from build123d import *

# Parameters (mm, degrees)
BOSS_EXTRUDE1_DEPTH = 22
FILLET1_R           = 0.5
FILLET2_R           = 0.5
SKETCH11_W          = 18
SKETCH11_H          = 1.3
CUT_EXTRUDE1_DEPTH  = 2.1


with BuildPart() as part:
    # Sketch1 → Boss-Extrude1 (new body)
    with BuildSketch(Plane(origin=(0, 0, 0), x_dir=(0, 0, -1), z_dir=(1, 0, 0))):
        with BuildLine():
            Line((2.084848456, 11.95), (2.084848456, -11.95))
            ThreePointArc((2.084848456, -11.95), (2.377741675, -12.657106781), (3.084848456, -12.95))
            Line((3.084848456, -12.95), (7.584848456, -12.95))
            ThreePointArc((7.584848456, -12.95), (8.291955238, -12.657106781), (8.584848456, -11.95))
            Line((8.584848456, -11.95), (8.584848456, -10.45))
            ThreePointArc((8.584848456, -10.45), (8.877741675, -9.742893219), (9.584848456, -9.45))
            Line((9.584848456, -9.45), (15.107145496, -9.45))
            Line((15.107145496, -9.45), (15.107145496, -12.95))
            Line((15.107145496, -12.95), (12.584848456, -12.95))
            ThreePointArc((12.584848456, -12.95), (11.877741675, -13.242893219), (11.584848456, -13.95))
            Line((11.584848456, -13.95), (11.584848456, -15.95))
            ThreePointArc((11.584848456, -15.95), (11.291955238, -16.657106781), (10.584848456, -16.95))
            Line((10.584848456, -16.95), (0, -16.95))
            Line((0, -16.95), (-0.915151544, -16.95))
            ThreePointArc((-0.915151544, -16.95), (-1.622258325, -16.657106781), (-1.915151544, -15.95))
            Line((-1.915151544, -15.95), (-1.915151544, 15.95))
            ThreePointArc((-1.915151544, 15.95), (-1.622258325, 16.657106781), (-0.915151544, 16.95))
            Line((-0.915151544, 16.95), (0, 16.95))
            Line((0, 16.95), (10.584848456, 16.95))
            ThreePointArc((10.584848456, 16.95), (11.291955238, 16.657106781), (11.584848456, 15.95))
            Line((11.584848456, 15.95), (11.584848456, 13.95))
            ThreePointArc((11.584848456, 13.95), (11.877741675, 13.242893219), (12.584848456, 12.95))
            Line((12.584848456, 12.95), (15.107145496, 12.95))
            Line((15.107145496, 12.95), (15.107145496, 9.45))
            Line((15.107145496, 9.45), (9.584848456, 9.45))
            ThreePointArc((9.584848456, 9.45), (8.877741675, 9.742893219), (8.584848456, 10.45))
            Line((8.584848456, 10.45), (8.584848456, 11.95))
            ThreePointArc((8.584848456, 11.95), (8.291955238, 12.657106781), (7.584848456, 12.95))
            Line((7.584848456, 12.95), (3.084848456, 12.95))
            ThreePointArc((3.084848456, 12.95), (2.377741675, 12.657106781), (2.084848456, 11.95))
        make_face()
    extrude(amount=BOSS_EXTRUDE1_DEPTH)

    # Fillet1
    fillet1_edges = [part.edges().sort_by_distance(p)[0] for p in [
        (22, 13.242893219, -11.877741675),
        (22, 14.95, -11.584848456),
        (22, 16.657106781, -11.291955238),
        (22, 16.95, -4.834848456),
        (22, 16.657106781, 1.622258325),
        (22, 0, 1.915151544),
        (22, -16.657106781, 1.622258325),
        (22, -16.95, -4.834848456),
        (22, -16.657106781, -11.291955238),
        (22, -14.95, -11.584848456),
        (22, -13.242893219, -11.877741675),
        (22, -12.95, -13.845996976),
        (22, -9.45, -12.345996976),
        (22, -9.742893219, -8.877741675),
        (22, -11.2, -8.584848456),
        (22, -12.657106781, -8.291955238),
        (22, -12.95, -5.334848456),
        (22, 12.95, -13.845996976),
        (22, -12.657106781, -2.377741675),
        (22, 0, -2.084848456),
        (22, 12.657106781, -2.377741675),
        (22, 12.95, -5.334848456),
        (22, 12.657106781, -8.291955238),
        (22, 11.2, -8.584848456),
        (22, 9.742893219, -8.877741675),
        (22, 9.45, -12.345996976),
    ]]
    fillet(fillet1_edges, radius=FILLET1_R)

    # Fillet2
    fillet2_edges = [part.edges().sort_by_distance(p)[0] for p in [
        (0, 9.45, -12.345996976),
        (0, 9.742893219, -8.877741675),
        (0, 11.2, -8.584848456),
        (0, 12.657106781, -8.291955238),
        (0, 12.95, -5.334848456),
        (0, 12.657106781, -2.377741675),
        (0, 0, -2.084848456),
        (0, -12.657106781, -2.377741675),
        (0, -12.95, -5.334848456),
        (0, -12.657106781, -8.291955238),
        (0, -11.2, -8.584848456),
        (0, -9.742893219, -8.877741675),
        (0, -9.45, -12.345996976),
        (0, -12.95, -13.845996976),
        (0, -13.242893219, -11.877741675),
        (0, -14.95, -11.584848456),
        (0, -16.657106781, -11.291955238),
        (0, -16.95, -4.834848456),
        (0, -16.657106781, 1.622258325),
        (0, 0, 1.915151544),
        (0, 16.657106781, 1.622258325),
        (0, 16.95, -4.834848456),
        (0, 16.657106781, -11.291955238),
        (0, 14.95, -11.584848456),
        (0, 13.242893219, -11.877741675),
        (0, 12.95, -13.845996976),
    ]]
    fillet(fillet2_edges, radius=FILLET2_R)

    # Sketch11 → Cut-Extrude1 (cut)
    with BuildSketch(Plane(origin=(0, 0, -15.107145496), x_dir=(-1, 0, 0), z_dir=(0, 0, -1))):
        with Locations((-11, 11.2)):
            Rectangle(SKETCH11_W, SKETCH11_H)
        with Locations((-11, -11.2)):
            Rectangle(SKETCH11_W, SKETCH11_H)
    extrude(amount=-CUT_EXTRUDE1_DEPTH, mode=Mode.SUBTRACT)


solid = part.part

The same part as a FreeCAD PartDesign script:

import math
import FreeCAD as App
import Part
import Sketcher


def edges_at(feature, points):
    """Names of the edges that pass closest to the given points."""
    edges = feature.Shape.Edges
    near = lambda p: min(range(len(edges)), key=lambda i: edges[i].distToShape(Part.Vertex(*p))[0])
    return sorted({f"Edge{near(p) + 1}" for p in points})


def add_polygon(sketch, points):
    """Adds a closed chain of lines whose ends are joined by coincident constraints."""
    first, n = sketch.GeometryCount, len(points)
    for a, b in zip(points, points[1:] + points[:1]):
        sketch.addGeometry(Part.LineSegment(App.Vector(*a, 0), App.Vector(*b, 0)), False)
    for i in range(n):
        sketch.addConstraint(Sketcher.Constraint("Coincident", first + i, 2, first + (i + 1) % n, 1))

doc = App.newDocument("Part")
body = doc.addObject("PartDesign::Body", "Body")

# Sketch on YZ plane
sketch1 = body.newObject("Sketcher::SketchObject", "Sketch")
sketch1.AttachmentSupport = (doc.getObject("YZ_Plane"), [""])
sketch1.MapMode = "FlatFace"
sketch1.addGeometry([
    Part.LineSegment(App.Vector(-11.95, -2.084848, 0), App.Vector(11.95, -2.084848, 0)),  # 0
    Part.ArcOfCircle(Part.Circle(App.Vector(11.95, -3.084848, 0), App.Vector(0, 0, 1), 1), math.radians(0), math.radians(90)),  # 1
    Part.LineSegment(App.Vector(12.95, -3.084848, 0), App.Vector(12.95, -7.584848, 0)),  # 2
    Part.ArcOfCircle(Part.Circle(App.Vector(11.95, -7.584848, 0), App.Vector(0, 0, 1), 1), math.radians(-90), math.radians(0)),  # 3
    Part.LineSegment(App.Vector(11.95, -8.584848, 0), App.Vector(10.45, -8.584848, 0)),  # 4
    Part.ArcOfCircle(Part.Circle(App.Vector(10.45, -9.584848, 0), App.Vector(0, 0, 1), 1), math.radians(90), math.radians(180)),  # 5
    Part.LineSegment(App.Vector(9.45, -9.584848, 0), App.Vector(9.45, -15.107145, 0)),  # 6
    Part.LineSegment(App.Vector(9.45, -15.107145, 0), App.Vector(12.95, -15.107145, 0)),  # 7
    Part.LineSegment(App.Vector(12.95, -15.107145, 0), App.Vector(12.95, -12.584848, 0)),  # 8
    Part.ArcOfCircle(Part.Circle(App.Vector(13.95, -12.584848, 0), App.Vector(0, 0, 1), 1), math.radians(90), math.radians(180)),  # 9
    Part.LineSegment(App.Vector(13.95, -11.584848, 0), App.Vector(15.95, -11.584848, 0)),  # 10
    Part.ArcOfCircle(Part.Circle(App.Vector(15.95, -10.584848, 0), App.Vector(0, 0, 1), 1), math.radians(-90), math.radians(0)),  # 11
    Part.LineSegment(App.Vector(16.95, -10.584848, 0), App.Vector(16.95, 0.915152, 0)),  # 12
    Part.ArcOfCircle(Part.Circle(App.Vector(15.95, 0.915152, 0), App.Vector(0, 0, 1), 1), math.radians(0), math.radians(90)),  # 13
    Part.LineSegment(App.Vector(15.95, 1.915152, 0), App.Vector(-15.95, 1.915152, 0)),  # 14
    Part.ArcOfCircle(Part.Circle(App.Vector(-15.95, 0.915152, 0), App.Vector(0, 0, 1), 1), math.radians(90), math.radians(180)),  # 15
    Part.LineSegment(App.Vector(-16.95, 0.915152, 0), App.Vector(-16.95, -10.584848, 0)),  # 16
    Part.ArcOfCircle(Part.Circle(App.Vector(-15.95, -10.584848, 0), App.Vector(0, 0, 1), 1), math.radians(180), math.radians(270)),  # 17
    Part.LineSegment(App.Vector(-15.95, -11.584848, 0), App.Vector(-13.95, -11.584848, 0)),  # 18
    Part.ArcOfCircle(Part.Circle(App.Vector(-13.95, -12.584848, 0), App.Vector(0, 0, 1), 1), math.radians(0), math.radians(90)),  # 19
    Part.LineSegment(App.Vector(-12.95, -12.584848, 0), App.Vector(-12.95, -15.107145, 0)),  # 20
    Part.LineSegment(App.Vector(-12.95, -15.107145, 0), App.Vector(-9.45, -15.107145, 0)),  # 21
    Part.LineSegment(App.Vector(-9.45, -15.107145, 0), App.Vector(-9.45, -9.584848, 0)),  # 22
    Part.ArcOfCircle(Part.Circle(App.Vector(-10.45, -9.584848, 0), App.Vector(0, 0, 1), 1), math.radians(0), math.radians(90)),  # 23
    Part.LineSegment(App.Vector(-10.45, -8.584848, 0), App.Vector(-11.95, -8.584848, 0)),  # 24
    Part.ArcOfCircle(Part.Circle(App.Vector(-11.95, -7.584848, 0), App.Vector(0, 0, 1), 1), math.radians(180), math.radians(270)),  # 25
    Part.LineSegment(App.Vector(-12.95, -7.584848, 0), App.Vector(-12.95, -3.084848, 0)),  # 26
    Part.ArcOfCircle(Part.Circle(App.Vector(-11.95, -3.084848, 0), App.Vector(0, 0, 1), 1), math.radians(90), math.radians(180)),  # 27
], False)
sketch1.addConstraint([
    Sketcher.Constraint("Tangent", 0, 2, 1, 2),
    Sketcher.Constraint("Tangent", 1, 1, 2, 1),
    Sketcher.Constraint("Tangent", 2, 2, 3, 2),
    Sketcher.Constraint("Tangent", 3, 1, 4, 1),
    Sketcher.Constraint("Tangent", 4, 2, 5, 1),
    Sketcher.Constraint("Tangent", 5, 2, 6, 1),
    Sketcher.Constraint("Coincident", 6, 2, 7, 1),
    Sketcher.Constraint("Coincident", 7, 2, 8, 1),
    Sketcher.Constraint("Tangent", 8, 2, 9, 2),
    Sketcher.Constraint("Tangent", 9, 1, 10, 1),
    Sketcher.Constraint("Tangent", 10, 2, 11, 1),
    Sketcher.Constraint("Tangent", 11, 2, 12, 1),
    Sketcher.Constraint("Tangent", 12, 2, 13, 1),
    Sketcher.Constraint("Tangent", 13, 2, 14, 1),
    Sketcher.Constraint("Tangent", 14, 2, 15, 1),
    Sketcher.Constraint("Tangent", 15, 2, 16, 1),
    Sketcher.Constraint("Tangent", 16, 2, 17, 1),
    Sketcher.Constraint("Tangent", 17, 2, 18, 1),
    Sketcher.Constraint("Tangent", 18, 2, 19, 2),
    Sketcher.Constraint("Tangent", 19, 1, 20, 1),
    Sketcher.Constraint("Coincident", 20, 2, 21, 1),
    Sketcher.Constraint("Coincident", 21, 2, 22, 1),
    Sketcher.Constraint("Tangent", 22, 2, 23, 1),
    Sketcher.Constraint("Tangent", 23, 2, 24, 1),
    Sketcher.Constraint("Tangent", 24, 2, 25, 2),
    Sketcher.Constraint("Tangent", 25, 1, 26, 1),
    Sketcher.Constraint("Tangent", 26, 2, 27, 2),
    Sketcher.Constraint("Tangent", 27, 1, 0, 1),
    Sketcher.Constraint("Horizontal", 0),
    Sketcher.Constraint("Vertical", 2),
    Sketcher.Constraint("Horizontal", 4),
    Sketcher.Constraint("Vertical", 6),
    Sketcher.Constraint("Horizontal", 7),
    Sketcher.Constraint("Vertical", 8),
    Sketcher.Constraint("Horizontal", 10),
    Sketcher.Constraint("Vertical", 12),
    Sketcher.Constraint("Horizontal", 14),
    Sketcher.Constraint("Vertical", 16),
    Sketcher.Constraint("Horizontal", 18),
    Sketcher.Constraint("Vertical", 20),
    Sketcher.Constraint("Horizontal", 21),
    Sketcher.Constraint("Vertical", 22),
    Sketcher.Constraint("Horizontal", 24),
    Sketcher.Constraint("Vertical", 26),
    Sketcher.Constraint("Equal", 1, 3),
    Sketcher.Constraint("Equal", 3, 5),
    Sketcher.Constraint("Equal", 5, 9),
    Sketcher.Constraint("Equal", 9, 11),
    Sketcher.Constraint("Equal", 11, 13),
    Sketcher.Constraint("Equal", 13, 15),
    Sketcher.Constraint("Equal", 15, 17),
    Sketcher.Constraint("Equal", 17, 19),
    Sketcher.Constraint("Equal", 19, 23),
    Sketcher.Constraint("Equal", 23, 25),
    Sketcher.Constraint("Equal", 25, 27),
    Sketcher.Constraint("Symmetric", 11, 3, 17, 3, -2),
    Sketcher.Constraint("Symmetric", 5, 3, 23, 3, -2),
    Sketcher.Constraint("Symmetric", 7, 2, 20, 2, -2),
    Sketcher.Constraint("Vertical", 2, 2, 7, 2),
    Sketcher.Constraint("Vertical", 20, 2, 25, 1),
    Sketcher.Constraint("Radius", 1, 1.0),
    Sketcher.Constraint("DistanceX", 10, 1, 10, 2, 2.0),
    Sketcher.Constraint("DistanceX", 0, 1, 0, 2, 23.9),
    Sketcher.Constraint("DistanceX", 4, 2, 4, 1, 1.5),
    Sketcher.Constraint("DistanceY", 2, 2, 2, 1, 4.5),
    Sketcher.Constraint("DistanceY", 12, 1, 12, 2, 11.5),
    Sketcher.Constraint("DistanceY", 9, 3, 5, 3, 3.0),
    Sketcher.Constraint("DistanceY", 6, 2, 6, 1, 5.522297),
    Sketcher.Constraint("DistanceY", 1, 3, -1, 1, 3.084848),
])
pad1 = body.newObject("PartDesign::Pad", "Pad")
pad1.Profile = sketch1
pad1.Length = 22
doc.recompute()

fillet = body.newObject("PartDesign::Fillet", "Fillet")
fillet.Base = (pad1, edges_at(pad1, [
    (22, 13.243, -11.878),
    (22, 14.95, -11.585),
    (22, 16.657, -11.292),
    (22, 16.95, -4.835),
    (22, 16.657, 1.622),
    (22, 0, 1.915),
    (22, -16.657, 1.622),
    (22, -16.95, -4.835),
    (22, -16.657, -11.292),
    (22, -14.95, -11.585),
    (22, -13.243, -11.878),
    (22, -12.95, -13.846),
    (22, -9.45, -12.346),
    (22, -9.743, -8.878),
    (22, -11.2, -8.585),
    (22, -12.657, -8.292),
    (22, -12.95, -5.335),
    (22, 12.95, -13.846),
    (22, -12.657, -2.378),
    (22, 0, -2.085),
    (22, 12.657, -2.378),
    (22, 12.95, -5.335),
    (22, 12.657, -8.292),
    (22, 11.2, -8.585),
    (22, 9.743, -8.878),
    (22, 9.45, -12.346),
]))
fillet.Radius = 0.5
doc.recompute()

fillet2 = body.newObject("PartDesign::Fillet", "Fillet001")
fillet2.Base = (fillet, edges_at(fillet, [
    (0, 9.45, -12.346),
    (0, 9.743, -8.878),
    (0, 11.2, -8.585),
    (0, 12.657, -8.292),
    (0, 12.95, -5.335),
    (0, 12.657, -2.378),
    (0, 0, -2.085),
    (0, -12.657, -2.378),
    (0, -12.95, -5.335),
    (0, -12.657, -8.292),
    (0, -11.2, -8.585),
    (0, -9.743, -8.878),
    (0, -9.45, -12.346),
    (0, -12.95, -13.846),
    (0, -13.243, -11.878),
    (0, -14.95, -11.585),
    (0, -16.657, -11.292),
    (0, -16.95, -4.835),
    (0, -16.657, 1.622),
    (0, 0, 1.915),
    (0, 16.657, 1.622),
    (0, 16.95, -4.835),
    (0, 16.657, -11.292),
    (0, 14.95, -11.585),
    (0, 13.243, -11.878),
    (0, 12.95, -13.846),
]))
fillet2.Radius = 0.5

# Sketch on XY plane
sketch2 = body.newObject("Sketcher::SketchObject", "Sketch001")
sketch2.AttachmentSupport = (doc.getObject("XY_Plane"), [""])
sketch2.MapMode = "FlatFace"
sketch2.AttachmentOffset = App.Placement(App.Vector(0, 0, -15.107145), App.Rotation())
add_polygon(sketch2, [(20, 11.85), (20, 10.55), (2, 10.55), (2, 11.85)])  # lines 0-3
add_polygon(sketch2, [(20, -10.55), (20, -11.85), (2, -11.85), (2, -10.55)])  # lines 4-7
sketch2.addConstraint([
    Sketcher.Constraint("Vertical", 0),
    Sketcher.Constraint("Horizontal", 1),
    Sketcher.Constraint("Vertical", 2),
    Sketcher.Constraint("Horizontal", 3),
    Sketcher.Constraint("Vertical", 4),
    Sketcher.Constraint("Horizontal", 5),
    Sketcher.Constraint("Vertical", 6),
    Sketcher.Constraint("Horizontal", 7),
    Sketcher.Constraint("Symmetric", 3, 2, 4, 2, -1),
    Sketcher.Constraint("Symmetric", 1, 2, 6, 2, -1),
    Sketcher.Constraint("DistanceX", 1, 2, 1, 1, 18.0),
    Sketcher.Constraint("DistanceY", 0, 2, 0, 1, 1.3),
    Sketcher.Constraint("DistanceX", -1, 1, 0, 2, 20.0),
    Sketcher.Constraint("DistanceY", 4, 2, 0, 2, 22.4),
])
pocket1 = body.newObject("PartDesign::Pocket", "Pocket")
pocket1.Profile = sketch2
pocket1.Length = 2.1
pocket1.Reversed = True

doc.recompute()
